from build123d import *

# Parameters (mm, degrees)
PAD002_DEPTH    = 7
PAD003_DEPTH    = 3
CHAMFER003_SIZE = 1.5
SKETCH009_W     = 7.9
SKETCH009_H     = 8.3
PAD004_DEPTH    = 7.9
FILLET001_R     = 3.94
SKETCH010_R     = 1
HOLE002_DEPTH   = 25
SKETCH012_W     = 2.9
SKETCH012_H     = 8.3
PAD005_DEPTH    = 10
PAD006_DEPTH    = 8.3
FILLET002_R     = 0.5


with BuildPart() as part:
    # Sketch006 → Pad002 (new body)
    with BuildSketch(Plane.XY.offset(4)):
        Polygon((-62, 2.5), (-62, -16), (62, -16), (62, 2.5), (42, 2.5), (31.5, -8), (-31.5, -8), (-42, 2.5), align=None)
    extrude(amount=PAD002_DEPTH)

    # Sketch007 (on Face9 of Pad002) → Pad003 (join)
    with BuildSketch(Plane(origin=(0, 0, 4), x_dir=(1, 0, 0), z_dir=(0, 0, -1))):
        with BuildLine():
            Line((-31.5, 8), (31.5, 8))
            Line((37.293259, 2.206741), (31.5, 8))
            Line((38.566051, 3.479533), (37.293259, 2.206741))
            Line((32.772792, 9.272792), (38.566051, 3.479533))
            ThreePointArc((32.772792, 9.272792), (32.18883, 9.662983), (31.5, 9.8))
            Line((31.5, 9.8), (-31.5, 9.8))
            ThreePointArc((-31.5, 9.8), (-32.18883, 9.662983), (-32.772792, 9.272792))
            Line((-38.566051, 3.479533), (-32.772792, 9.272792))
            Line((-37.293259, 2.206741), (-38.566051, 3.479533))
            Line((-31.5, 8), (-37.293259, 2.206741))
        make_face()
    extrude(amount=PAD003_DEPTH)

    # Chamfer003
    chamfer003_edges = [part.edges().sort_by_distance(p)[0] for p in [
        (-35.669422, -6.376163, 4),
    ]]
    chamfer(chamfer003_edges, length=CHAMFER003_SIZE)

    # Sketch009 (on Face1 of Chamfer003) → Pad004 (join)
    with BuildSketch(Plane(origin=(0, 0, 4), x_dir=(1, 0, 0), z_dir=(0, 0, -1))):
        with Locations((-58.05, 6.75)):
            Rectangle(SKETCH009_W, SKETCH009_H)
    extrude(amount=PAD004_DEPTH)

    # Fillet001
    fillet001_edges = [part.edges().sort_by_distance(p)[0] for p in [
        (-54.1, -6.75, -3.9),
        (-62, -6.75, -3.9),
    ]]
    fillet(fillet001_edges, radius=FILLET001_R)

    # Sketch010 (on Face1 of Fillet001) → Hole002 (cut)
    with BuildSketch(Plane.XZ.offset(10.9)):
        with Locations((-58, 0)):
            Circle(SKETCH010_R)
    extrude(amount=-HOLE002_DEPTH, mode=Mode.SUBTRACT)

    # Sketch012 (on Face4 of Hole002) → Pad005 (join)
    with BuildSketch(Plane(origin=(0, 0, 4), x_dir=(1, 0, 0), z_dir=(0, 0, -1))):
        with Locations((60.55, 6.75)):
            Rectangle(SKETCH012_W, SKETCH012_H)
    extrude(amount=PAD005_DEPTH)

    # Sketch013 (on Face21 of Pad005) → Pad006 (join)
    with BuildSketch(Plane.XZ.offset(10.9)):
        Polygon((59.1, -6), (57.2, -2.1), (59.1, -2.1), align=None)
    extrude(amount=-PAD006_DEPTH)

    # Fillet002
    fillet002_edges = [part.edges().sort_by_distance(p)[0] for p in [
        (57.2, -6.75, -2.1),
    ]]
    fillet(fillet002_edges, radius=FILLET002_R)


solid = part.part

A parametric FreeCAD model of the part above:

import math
import FreeCAD as App
import Part
import Sketcher

V = App.Vector


def edges_at(feature, points):
    """Names of the edges that pass closest to the given points."""
    edges = feature.Shape.Edges
    near = lambda p: min(range(len(edges)), key=lambda i: edges[i].distToShape(Part.Vertex(*p))[0])
    return sorted({f"Edge{near(p) + 1}" for p in points})


def add_polygon(sketch, points):
    """Adds a closed chain of lines whose ends are joined by coincident constraints."""
    first, n = sketch.GeometryCount, len(points)
    for a, b in zip(points, points[1:] + points[:1]):
        sketch.addGeometry(Part.LineSegment(App.Vector(*a, 0), App.Vector(*b, 0)), False)
    for i in range(n):
        sketch.addConstraint(Sketcher.Constraint("Coincident", first + i, 2, first + (i + 1) % n, 1))

doc = App.newDocument("Part")
params = doc.addObject("Spreadsheet::Sheet", "Params")
for row, (alias, value) in enumerate([
    ("sketch1_width", "124 mm"),
    ("sketch1_width2", "20 mm"),
    ("sketch1_width3", "63 mm"),
    ("sketch1_height", "18.5 mm"),
    ("pad1_length", "7 mm"),
    ("sketch2_radius", "1.800001 mm"),
    ("sketch2_width", "63 mm"),
    ("pad2_length", "3 mm"),
    ("chamfer_size", "1.5 mm"),
    ("sketch3_width", "7.9 mm"),
    ("sketch3_height", "8.3 mm"),
    ("pad3_length", "7.9 mm"),
    ("fillet_radius", "3.94 mm"),
    ("sketch4_diameter", "2 mm"),
    ("pocket1_length", "25 mm"),
    ("sketch5_width", "2.9 mm"),
    ("sketch5_height", "8.3 mm"),
    ("pad4_length", "10 mm"),
    ("sketch6_width", "1.9 mm"),
    ("sketch6_height", "3.9 mm"),
    ("pad5_length", "8.3 mm"),
    ("fillet2_radius", "0.5 mm"),
], start=1):
    params.set(f"A{row}", alias)
    params.set(f"B{row}", "=" + value)
    params.setAlias(f"B{row}", alias)

body = doc.addObject("PartDesign::Body", "Body")

sketch1 = doc.addObject("Sketcher::SketchObject", "Sketch")
body.addObject(sketch1)
sketch1.AttachmentSupport = (doc.XY_Plane, [""])
sketch1.MapMode = "FlatFace"
sketch1.AttachmentOffset = App.Placement(V(0, 0, 4), App.Rotation())
add_polygon(sketch1, [(-62, 2.5), (-62, -16), (62, -16), (62, 2.5), (42, 2.5), (31.5, -8), (-31.5, -8), (-42, 2.5)])
sketch1.addConstraint([
    Sketcher.Constraint("Vertical", 0),
    Sketcher.Constraint("Horizontal", 1),
    Sketcher.Constraint("Vertical", 2),
    Sketcher.Constraint("Horizontal", 3),
    Sketcher.Constraint("Horizontal", 5),
    Sketcher.Constraint("Horizontal", 7),
    Sketcher.Constraint("Symmetric", 3, 2, 6, 2, -2),
    Sketcher.Constraint("Perpendicular", 4, 6),
    Sketcher.Constraint("Equal", 3, 7),
    Sketcher.Constraint("Equal", 4, 6),
    Sketcher.Constraint("DistanceX", 1, 1, 1, 2, 124.0),
    Sketcher.Constraint("DistanceX", 3, 2, 3, 1, 20.0),
    Sketcher.Constraint("DistanceX", 5, 2, 5, 1, 63.0),
    Sketcher.Constraint("DistanceY", 0, 2, 0, 1, 18.5),
    Sketcher.Constraint("DistanceY", 0, 2, -1, 1, 16.0),
])
sketch1.setExpression("Constraints[18]", "Params.sketch1_width")
sketch1.setExpression("Constraints[19]", "Params.sketch1_width2")
sketch1.setExpression("Constraints[20]", "Params.sketch1_width3")
sketch1.setExpression("Constraints[21]", "Params.sketch1_height")
pad1 = doc.addObject("PartDesign::Pad", "Pad")
body.addObject(pad1)
pad1.Profile = sketch1
pad1.setExpression("Length", "Params.pad1_length")

sketch2 = doc.addObject("Sketcher::SketchObject", "Sketch001")
body.addObject(sketch2)
sketch2.AttachmentSupport = (doc.XY_Plane, [""])
sketch2.MapMode = "FlatFace"
sketch2.AttachmentOffset = App.Placement(V(0, 0, 4), App.Rotation())
sketch2.addGeometry([
    Part.LineSegment(V(-31.5, -8, 0), V(31.5, -8, 0)),
    Part.LineSegment(V(31.5, -8, 0), V(37.293259, -2.206741, 0)),
    Part.LineSegment(V(37.293259, -2.206741, 0), V(38.566051, -3.479533, 0)),
    Part.LineSegment(V(38.566051, -3.479533, 0), V(32.772792, -9.272792, 0)),
    Part.ArcOfCircle(Part.Circle(V(31.499999, -7.999999, 0), V(0, 0, 1), 1.800001), math.radians(-89.999978), math.radians(-45)),
    Part.LineSegment(V(31.5, -9.8, 0), V(-31.5, -9.8, 0)),
    Part.ArcOfCircle(Part.Circle(V(-31.499999, -7.999999, 0), V(0, 0, 1), 1.800001), math.radians(-135), math.radians(-90.000022)),
    Part.LineSegment(V(-32.772792, -9.272792, 0), V(-38.566051, -3.479533, 0)),
    Part.LineSegment(V(-38.566051, -3.479533, 0), V(-37.293259, -2.206741, 0)),
    Part.LineSegment(V(-37.293259, -2.206741, 0), V(-31.5, -8, 0)),
], False)
sketch2.addConstraint([
    Sketcher.Constraint("Coincident", 0, 2, 1, 1),
    Sketcher.Constraint("Coincident", 1, 2, 2, 1),
    Sketcher.Constraint("Coincident", 2, 2, 3, 1),
    Sketcher.Constraint("Tangent", 3, 2, 4, 2),
    Sketcher.Constraint("Tangent", 4, 1, 5, 1),
    Sketcher.Constraint("Tangent", 5, 2, 6, 2),
    Sketcher.Constraint("Tangent", 6, 1, 7, 1),
    Sketcher.Constraint("Coincident", 7, 2, 8, 1),
    Sketcher.Constraint("Coincident", 8, 2, 9, 1),
    Sketcher.Constraint("Coincident", 9, 2, 0, 1),
    Sketcher.Constraint("Horizontal", 0),
    Sketcher.Constraint("Horizontal", 5),
    Sketcher.Constraint("Coincident", 0, 2, 4, 3),
    Sketcher.Constraint("Coincident", 9, 2, 6, 3),
    Sketcher.Constraint("Symmetric", 3, 2, 6, 1, -2),
    Sketcher.Constraint("Symmetric", 1, 2, 8, 2, -2),
    Sketcher.Constraint("Perpendicular", 1, 2),
    Sketcher.Constraint("Perpendicular", 2, 3),
    Sketcher.Constraint("Perpendicular", 3, 7),
    Sketcher.Constraint("Perpendicular", 7, 8),
    Sketcher.Constraint("Radius", 4, 1.800001),
    Sketcher.Constraint("DistanceX", 0, 1, 0, 2, 63.0),
    Sketcher.Constraint("DistanceY", 4, 3, -1, 1, 7.999999),
    Sketcher.Constraint("DistanceX", -1, 1, 1, 2, 37.293259),
])
sketch2.setExpression("Constraints[20]", "Params.sketch2_radius")
sketch2.setExpression("Constraints[21]", "Params.sketch2_width")
pad2 = doc.addObject("PartDesign::Pad", "Pad001")
body.addObject(pad2)
pad2.Profile = sketch2
pad2.setExpression("Length", "Params.pad2_length")
pad2.Reversed = True
doc.recompute()

chamfer = doc.addObject("PartDesign::Chamfer", "Chamfer")
body.addObject(chamfer)
chamfer.Base = (pad2, edges_at(pad2, [(-35.669, -6.376, 4)]))
chamfer.setExpression("Size", "Params.chamfer_size")

sketch3 = doc.addObject("Sketcher::SketchObject", "Sketch002")
body.addObject(sketch3)
sketch3.AttachmentSupport = (doc.XY_Plane, [""])
sketch3.MapMode = "FlatFace"
sketch3.AttachmentOffset = App.Placement(V(0, 0, 4), App.Rotation())
add_polygon(sketch3, [(-62, -10.9), (-62, -2.6), (-54.1, -2.6), (-54.1, -10.9)])
sketch3.addConstraint([
    Sketcher.Constraint("Vertical", 0),
    Sketcher.Constraint("Horizontal", 1),
    Sketcher.Constraint("Vertical", 2),
    Sketcher.Constraint("Horizontal", 3),
    Sketcher.Constraint("DistanceX", 1, 1, 1, 2, 7.9),
    Sketcher.Constraint("DistanceY", 0, 1, 0, 2, 8.3),
    Sketcher.Constraint("DistanceX", 0, 2, -1, 1, 62.0),
    Sketcher.Constraint("DistanceY", 0, 2, -1, 1, 2.6),
])
sketch3.setExpression("Constraints[8]", "Params.sketch3_width")
sketch3.setExpression("Constraints[9]", "Params.sketch3_height")
pad3 = doc.addObject("PartDesign::Pad", "Pad002")
body.addObject(pad3)
pad3.Profile = sketch3
pad3.setExpression("Length", "Params.pad3_length")
pad3.Reversed = True
doc.recompute()

fillet = doc.addObject("PartDesign::Fillet", "Fillet")
body.addObject(fillet)
fillet.Base = (pad3, edges_at(pad3, [(-54.1, -6.75, -3.9), (-62, -6.75, -3.9)]))
fillet.setExpression("Radius", "Params.fillet_radius")

sketch4 = doc.addObject("Sketcher::SketchObject", "Sketch003")
body.addObject(sketch4)
sketch4.AttachmentSupport = (doc.XZ_Plane, [""])
sketch4.MapMode = "FlatFace"
sketch4.AttachmentOffset = App.Placement(V(0, 0, 10.9), App.Rotation())
sketch4.addGeometry(Part.Circle(V(-58, 0, 0), V(0, 0, 1), 1), False)
sketch4.addConstraint([
    Sketcher.Constraint("PointOnObject", 0, 3, -1),
    Sketcher.Constraint("Diameter", 0, 2.0),
    Sketcher.Constraint("DistanceX", 0, 3, -1, 1, 58.0),
])
sketch4.setExpression("Constraints[1]", "Params.sketch4_diameter")
pocket1 = doc.addObject("PartDesign::Pocket", "Pocket")
body.addObject(pocket1)
pocket1.Profile = sketch4
pocket1.setExpression("Length", "Params.pocket1_length")

sketch5 = doc.addObject("Sketcher::SketchObject", "Sketch004")
body.addObject(sketch5)
sketch5.AttachmentSupport = (doc.XY_Plane, [""])
sketch5.MapMode = "FlatFace"
sketch5.AttachmentOffset = App.Placement(V(0, 0, 4), App.Rotation())
add_polygon(sketch5, [(59.1, -10.9), (59.1, -2.6), (62, -2.6), (62, -10.9)])
sketch5.addConstraint([
    Sketcher.Constraint("Vertical", 0),
    Sketcher.Constraint("Horizontal", 1),
    Sketcher.Constraint("Vertical", 2),
    Sketcher.Constraint("Horizontal", 3),
    Sketcher.Constraint("DistanceX", 1, 1, 1, 2, 2.9),
    Sketcher.Constraint("DistanceY", 0, 1, 0, 2, 8.3),
    Sketcher.Constraint("DistanceX", -1, 1, 1, 2, 62.0),
    Sketcher.Constraint("DistanceY", 0, 2, -1, 1, 2.6),
])
sketch5.setExpression("Constraints[8]", "Params.sketch5_width")
sketch5.setExpression("Constraints[9]", "Params.sketch5_height")
pad4 = doc.addObject("PartDesign::Pad", "Pad003")
body.addObject(pad4)
pad4.Profile = sketch5
pad4.setExpression("Length", "Params.pad4_length")
pad4.Reversed = True

sketch6 = doc.addObject("Sketcher::SketchObject", "Sketch005")
body.addObject(sketch6)
sketch6.AttachmentSupport = (doc.XZ_Plane, [""])
sketch6.MapMode = "FlatFace"
sketch6.AttachmentOffset = App.Placement(V(0, 0, 10.9), App.Rotation())
add_polygon(sketch6, [(57.2, -2.1), (59.1, -6), (59.1, -2.1)])
sketch6.addConstraint([
    Sketcher.Constraint("Vertical", 1),
    Sketcher.Constraint("Horizontal", 2),
    Sketcher.Constraint("DistanceX", 2, 2, 2, 1, 1.9),
    Sketcher.Constraint("DistanceY", 1, 1, 1, 2, 3.9),
    Sketcher.Constraint("DistanceY", 0, 2, -1, 1, 6.0),
    Sketcher.Constraint("DistanceX", -1, 1, 0, 2, 59.1),
])
sketch6.setExpression("Constraints[5]", "Params.sketch6_width")
sketch6.setExpression("Constraints[6]", "Params.sketch6_height")
pad5 = doc.addObject("PartDesign::Pad", "Pad004")
body.addObject(pad5)
pad5.Profile = sketch6
pad5.setExpression("Length", "Params.pad5_length")
pad5.Reversed = True
doc.recompute()

fillet2 = doc.addObject("PartDesign::Fillet", "Fillet001")
body.addObject(fillet2)
fillet2.Base = (pad5, edges_at(pad5, [(57.2, -6.75, -2.1)]))
fillet2.setExpression("Radius", "Params.fillet2_radius")

doc.recompute()
